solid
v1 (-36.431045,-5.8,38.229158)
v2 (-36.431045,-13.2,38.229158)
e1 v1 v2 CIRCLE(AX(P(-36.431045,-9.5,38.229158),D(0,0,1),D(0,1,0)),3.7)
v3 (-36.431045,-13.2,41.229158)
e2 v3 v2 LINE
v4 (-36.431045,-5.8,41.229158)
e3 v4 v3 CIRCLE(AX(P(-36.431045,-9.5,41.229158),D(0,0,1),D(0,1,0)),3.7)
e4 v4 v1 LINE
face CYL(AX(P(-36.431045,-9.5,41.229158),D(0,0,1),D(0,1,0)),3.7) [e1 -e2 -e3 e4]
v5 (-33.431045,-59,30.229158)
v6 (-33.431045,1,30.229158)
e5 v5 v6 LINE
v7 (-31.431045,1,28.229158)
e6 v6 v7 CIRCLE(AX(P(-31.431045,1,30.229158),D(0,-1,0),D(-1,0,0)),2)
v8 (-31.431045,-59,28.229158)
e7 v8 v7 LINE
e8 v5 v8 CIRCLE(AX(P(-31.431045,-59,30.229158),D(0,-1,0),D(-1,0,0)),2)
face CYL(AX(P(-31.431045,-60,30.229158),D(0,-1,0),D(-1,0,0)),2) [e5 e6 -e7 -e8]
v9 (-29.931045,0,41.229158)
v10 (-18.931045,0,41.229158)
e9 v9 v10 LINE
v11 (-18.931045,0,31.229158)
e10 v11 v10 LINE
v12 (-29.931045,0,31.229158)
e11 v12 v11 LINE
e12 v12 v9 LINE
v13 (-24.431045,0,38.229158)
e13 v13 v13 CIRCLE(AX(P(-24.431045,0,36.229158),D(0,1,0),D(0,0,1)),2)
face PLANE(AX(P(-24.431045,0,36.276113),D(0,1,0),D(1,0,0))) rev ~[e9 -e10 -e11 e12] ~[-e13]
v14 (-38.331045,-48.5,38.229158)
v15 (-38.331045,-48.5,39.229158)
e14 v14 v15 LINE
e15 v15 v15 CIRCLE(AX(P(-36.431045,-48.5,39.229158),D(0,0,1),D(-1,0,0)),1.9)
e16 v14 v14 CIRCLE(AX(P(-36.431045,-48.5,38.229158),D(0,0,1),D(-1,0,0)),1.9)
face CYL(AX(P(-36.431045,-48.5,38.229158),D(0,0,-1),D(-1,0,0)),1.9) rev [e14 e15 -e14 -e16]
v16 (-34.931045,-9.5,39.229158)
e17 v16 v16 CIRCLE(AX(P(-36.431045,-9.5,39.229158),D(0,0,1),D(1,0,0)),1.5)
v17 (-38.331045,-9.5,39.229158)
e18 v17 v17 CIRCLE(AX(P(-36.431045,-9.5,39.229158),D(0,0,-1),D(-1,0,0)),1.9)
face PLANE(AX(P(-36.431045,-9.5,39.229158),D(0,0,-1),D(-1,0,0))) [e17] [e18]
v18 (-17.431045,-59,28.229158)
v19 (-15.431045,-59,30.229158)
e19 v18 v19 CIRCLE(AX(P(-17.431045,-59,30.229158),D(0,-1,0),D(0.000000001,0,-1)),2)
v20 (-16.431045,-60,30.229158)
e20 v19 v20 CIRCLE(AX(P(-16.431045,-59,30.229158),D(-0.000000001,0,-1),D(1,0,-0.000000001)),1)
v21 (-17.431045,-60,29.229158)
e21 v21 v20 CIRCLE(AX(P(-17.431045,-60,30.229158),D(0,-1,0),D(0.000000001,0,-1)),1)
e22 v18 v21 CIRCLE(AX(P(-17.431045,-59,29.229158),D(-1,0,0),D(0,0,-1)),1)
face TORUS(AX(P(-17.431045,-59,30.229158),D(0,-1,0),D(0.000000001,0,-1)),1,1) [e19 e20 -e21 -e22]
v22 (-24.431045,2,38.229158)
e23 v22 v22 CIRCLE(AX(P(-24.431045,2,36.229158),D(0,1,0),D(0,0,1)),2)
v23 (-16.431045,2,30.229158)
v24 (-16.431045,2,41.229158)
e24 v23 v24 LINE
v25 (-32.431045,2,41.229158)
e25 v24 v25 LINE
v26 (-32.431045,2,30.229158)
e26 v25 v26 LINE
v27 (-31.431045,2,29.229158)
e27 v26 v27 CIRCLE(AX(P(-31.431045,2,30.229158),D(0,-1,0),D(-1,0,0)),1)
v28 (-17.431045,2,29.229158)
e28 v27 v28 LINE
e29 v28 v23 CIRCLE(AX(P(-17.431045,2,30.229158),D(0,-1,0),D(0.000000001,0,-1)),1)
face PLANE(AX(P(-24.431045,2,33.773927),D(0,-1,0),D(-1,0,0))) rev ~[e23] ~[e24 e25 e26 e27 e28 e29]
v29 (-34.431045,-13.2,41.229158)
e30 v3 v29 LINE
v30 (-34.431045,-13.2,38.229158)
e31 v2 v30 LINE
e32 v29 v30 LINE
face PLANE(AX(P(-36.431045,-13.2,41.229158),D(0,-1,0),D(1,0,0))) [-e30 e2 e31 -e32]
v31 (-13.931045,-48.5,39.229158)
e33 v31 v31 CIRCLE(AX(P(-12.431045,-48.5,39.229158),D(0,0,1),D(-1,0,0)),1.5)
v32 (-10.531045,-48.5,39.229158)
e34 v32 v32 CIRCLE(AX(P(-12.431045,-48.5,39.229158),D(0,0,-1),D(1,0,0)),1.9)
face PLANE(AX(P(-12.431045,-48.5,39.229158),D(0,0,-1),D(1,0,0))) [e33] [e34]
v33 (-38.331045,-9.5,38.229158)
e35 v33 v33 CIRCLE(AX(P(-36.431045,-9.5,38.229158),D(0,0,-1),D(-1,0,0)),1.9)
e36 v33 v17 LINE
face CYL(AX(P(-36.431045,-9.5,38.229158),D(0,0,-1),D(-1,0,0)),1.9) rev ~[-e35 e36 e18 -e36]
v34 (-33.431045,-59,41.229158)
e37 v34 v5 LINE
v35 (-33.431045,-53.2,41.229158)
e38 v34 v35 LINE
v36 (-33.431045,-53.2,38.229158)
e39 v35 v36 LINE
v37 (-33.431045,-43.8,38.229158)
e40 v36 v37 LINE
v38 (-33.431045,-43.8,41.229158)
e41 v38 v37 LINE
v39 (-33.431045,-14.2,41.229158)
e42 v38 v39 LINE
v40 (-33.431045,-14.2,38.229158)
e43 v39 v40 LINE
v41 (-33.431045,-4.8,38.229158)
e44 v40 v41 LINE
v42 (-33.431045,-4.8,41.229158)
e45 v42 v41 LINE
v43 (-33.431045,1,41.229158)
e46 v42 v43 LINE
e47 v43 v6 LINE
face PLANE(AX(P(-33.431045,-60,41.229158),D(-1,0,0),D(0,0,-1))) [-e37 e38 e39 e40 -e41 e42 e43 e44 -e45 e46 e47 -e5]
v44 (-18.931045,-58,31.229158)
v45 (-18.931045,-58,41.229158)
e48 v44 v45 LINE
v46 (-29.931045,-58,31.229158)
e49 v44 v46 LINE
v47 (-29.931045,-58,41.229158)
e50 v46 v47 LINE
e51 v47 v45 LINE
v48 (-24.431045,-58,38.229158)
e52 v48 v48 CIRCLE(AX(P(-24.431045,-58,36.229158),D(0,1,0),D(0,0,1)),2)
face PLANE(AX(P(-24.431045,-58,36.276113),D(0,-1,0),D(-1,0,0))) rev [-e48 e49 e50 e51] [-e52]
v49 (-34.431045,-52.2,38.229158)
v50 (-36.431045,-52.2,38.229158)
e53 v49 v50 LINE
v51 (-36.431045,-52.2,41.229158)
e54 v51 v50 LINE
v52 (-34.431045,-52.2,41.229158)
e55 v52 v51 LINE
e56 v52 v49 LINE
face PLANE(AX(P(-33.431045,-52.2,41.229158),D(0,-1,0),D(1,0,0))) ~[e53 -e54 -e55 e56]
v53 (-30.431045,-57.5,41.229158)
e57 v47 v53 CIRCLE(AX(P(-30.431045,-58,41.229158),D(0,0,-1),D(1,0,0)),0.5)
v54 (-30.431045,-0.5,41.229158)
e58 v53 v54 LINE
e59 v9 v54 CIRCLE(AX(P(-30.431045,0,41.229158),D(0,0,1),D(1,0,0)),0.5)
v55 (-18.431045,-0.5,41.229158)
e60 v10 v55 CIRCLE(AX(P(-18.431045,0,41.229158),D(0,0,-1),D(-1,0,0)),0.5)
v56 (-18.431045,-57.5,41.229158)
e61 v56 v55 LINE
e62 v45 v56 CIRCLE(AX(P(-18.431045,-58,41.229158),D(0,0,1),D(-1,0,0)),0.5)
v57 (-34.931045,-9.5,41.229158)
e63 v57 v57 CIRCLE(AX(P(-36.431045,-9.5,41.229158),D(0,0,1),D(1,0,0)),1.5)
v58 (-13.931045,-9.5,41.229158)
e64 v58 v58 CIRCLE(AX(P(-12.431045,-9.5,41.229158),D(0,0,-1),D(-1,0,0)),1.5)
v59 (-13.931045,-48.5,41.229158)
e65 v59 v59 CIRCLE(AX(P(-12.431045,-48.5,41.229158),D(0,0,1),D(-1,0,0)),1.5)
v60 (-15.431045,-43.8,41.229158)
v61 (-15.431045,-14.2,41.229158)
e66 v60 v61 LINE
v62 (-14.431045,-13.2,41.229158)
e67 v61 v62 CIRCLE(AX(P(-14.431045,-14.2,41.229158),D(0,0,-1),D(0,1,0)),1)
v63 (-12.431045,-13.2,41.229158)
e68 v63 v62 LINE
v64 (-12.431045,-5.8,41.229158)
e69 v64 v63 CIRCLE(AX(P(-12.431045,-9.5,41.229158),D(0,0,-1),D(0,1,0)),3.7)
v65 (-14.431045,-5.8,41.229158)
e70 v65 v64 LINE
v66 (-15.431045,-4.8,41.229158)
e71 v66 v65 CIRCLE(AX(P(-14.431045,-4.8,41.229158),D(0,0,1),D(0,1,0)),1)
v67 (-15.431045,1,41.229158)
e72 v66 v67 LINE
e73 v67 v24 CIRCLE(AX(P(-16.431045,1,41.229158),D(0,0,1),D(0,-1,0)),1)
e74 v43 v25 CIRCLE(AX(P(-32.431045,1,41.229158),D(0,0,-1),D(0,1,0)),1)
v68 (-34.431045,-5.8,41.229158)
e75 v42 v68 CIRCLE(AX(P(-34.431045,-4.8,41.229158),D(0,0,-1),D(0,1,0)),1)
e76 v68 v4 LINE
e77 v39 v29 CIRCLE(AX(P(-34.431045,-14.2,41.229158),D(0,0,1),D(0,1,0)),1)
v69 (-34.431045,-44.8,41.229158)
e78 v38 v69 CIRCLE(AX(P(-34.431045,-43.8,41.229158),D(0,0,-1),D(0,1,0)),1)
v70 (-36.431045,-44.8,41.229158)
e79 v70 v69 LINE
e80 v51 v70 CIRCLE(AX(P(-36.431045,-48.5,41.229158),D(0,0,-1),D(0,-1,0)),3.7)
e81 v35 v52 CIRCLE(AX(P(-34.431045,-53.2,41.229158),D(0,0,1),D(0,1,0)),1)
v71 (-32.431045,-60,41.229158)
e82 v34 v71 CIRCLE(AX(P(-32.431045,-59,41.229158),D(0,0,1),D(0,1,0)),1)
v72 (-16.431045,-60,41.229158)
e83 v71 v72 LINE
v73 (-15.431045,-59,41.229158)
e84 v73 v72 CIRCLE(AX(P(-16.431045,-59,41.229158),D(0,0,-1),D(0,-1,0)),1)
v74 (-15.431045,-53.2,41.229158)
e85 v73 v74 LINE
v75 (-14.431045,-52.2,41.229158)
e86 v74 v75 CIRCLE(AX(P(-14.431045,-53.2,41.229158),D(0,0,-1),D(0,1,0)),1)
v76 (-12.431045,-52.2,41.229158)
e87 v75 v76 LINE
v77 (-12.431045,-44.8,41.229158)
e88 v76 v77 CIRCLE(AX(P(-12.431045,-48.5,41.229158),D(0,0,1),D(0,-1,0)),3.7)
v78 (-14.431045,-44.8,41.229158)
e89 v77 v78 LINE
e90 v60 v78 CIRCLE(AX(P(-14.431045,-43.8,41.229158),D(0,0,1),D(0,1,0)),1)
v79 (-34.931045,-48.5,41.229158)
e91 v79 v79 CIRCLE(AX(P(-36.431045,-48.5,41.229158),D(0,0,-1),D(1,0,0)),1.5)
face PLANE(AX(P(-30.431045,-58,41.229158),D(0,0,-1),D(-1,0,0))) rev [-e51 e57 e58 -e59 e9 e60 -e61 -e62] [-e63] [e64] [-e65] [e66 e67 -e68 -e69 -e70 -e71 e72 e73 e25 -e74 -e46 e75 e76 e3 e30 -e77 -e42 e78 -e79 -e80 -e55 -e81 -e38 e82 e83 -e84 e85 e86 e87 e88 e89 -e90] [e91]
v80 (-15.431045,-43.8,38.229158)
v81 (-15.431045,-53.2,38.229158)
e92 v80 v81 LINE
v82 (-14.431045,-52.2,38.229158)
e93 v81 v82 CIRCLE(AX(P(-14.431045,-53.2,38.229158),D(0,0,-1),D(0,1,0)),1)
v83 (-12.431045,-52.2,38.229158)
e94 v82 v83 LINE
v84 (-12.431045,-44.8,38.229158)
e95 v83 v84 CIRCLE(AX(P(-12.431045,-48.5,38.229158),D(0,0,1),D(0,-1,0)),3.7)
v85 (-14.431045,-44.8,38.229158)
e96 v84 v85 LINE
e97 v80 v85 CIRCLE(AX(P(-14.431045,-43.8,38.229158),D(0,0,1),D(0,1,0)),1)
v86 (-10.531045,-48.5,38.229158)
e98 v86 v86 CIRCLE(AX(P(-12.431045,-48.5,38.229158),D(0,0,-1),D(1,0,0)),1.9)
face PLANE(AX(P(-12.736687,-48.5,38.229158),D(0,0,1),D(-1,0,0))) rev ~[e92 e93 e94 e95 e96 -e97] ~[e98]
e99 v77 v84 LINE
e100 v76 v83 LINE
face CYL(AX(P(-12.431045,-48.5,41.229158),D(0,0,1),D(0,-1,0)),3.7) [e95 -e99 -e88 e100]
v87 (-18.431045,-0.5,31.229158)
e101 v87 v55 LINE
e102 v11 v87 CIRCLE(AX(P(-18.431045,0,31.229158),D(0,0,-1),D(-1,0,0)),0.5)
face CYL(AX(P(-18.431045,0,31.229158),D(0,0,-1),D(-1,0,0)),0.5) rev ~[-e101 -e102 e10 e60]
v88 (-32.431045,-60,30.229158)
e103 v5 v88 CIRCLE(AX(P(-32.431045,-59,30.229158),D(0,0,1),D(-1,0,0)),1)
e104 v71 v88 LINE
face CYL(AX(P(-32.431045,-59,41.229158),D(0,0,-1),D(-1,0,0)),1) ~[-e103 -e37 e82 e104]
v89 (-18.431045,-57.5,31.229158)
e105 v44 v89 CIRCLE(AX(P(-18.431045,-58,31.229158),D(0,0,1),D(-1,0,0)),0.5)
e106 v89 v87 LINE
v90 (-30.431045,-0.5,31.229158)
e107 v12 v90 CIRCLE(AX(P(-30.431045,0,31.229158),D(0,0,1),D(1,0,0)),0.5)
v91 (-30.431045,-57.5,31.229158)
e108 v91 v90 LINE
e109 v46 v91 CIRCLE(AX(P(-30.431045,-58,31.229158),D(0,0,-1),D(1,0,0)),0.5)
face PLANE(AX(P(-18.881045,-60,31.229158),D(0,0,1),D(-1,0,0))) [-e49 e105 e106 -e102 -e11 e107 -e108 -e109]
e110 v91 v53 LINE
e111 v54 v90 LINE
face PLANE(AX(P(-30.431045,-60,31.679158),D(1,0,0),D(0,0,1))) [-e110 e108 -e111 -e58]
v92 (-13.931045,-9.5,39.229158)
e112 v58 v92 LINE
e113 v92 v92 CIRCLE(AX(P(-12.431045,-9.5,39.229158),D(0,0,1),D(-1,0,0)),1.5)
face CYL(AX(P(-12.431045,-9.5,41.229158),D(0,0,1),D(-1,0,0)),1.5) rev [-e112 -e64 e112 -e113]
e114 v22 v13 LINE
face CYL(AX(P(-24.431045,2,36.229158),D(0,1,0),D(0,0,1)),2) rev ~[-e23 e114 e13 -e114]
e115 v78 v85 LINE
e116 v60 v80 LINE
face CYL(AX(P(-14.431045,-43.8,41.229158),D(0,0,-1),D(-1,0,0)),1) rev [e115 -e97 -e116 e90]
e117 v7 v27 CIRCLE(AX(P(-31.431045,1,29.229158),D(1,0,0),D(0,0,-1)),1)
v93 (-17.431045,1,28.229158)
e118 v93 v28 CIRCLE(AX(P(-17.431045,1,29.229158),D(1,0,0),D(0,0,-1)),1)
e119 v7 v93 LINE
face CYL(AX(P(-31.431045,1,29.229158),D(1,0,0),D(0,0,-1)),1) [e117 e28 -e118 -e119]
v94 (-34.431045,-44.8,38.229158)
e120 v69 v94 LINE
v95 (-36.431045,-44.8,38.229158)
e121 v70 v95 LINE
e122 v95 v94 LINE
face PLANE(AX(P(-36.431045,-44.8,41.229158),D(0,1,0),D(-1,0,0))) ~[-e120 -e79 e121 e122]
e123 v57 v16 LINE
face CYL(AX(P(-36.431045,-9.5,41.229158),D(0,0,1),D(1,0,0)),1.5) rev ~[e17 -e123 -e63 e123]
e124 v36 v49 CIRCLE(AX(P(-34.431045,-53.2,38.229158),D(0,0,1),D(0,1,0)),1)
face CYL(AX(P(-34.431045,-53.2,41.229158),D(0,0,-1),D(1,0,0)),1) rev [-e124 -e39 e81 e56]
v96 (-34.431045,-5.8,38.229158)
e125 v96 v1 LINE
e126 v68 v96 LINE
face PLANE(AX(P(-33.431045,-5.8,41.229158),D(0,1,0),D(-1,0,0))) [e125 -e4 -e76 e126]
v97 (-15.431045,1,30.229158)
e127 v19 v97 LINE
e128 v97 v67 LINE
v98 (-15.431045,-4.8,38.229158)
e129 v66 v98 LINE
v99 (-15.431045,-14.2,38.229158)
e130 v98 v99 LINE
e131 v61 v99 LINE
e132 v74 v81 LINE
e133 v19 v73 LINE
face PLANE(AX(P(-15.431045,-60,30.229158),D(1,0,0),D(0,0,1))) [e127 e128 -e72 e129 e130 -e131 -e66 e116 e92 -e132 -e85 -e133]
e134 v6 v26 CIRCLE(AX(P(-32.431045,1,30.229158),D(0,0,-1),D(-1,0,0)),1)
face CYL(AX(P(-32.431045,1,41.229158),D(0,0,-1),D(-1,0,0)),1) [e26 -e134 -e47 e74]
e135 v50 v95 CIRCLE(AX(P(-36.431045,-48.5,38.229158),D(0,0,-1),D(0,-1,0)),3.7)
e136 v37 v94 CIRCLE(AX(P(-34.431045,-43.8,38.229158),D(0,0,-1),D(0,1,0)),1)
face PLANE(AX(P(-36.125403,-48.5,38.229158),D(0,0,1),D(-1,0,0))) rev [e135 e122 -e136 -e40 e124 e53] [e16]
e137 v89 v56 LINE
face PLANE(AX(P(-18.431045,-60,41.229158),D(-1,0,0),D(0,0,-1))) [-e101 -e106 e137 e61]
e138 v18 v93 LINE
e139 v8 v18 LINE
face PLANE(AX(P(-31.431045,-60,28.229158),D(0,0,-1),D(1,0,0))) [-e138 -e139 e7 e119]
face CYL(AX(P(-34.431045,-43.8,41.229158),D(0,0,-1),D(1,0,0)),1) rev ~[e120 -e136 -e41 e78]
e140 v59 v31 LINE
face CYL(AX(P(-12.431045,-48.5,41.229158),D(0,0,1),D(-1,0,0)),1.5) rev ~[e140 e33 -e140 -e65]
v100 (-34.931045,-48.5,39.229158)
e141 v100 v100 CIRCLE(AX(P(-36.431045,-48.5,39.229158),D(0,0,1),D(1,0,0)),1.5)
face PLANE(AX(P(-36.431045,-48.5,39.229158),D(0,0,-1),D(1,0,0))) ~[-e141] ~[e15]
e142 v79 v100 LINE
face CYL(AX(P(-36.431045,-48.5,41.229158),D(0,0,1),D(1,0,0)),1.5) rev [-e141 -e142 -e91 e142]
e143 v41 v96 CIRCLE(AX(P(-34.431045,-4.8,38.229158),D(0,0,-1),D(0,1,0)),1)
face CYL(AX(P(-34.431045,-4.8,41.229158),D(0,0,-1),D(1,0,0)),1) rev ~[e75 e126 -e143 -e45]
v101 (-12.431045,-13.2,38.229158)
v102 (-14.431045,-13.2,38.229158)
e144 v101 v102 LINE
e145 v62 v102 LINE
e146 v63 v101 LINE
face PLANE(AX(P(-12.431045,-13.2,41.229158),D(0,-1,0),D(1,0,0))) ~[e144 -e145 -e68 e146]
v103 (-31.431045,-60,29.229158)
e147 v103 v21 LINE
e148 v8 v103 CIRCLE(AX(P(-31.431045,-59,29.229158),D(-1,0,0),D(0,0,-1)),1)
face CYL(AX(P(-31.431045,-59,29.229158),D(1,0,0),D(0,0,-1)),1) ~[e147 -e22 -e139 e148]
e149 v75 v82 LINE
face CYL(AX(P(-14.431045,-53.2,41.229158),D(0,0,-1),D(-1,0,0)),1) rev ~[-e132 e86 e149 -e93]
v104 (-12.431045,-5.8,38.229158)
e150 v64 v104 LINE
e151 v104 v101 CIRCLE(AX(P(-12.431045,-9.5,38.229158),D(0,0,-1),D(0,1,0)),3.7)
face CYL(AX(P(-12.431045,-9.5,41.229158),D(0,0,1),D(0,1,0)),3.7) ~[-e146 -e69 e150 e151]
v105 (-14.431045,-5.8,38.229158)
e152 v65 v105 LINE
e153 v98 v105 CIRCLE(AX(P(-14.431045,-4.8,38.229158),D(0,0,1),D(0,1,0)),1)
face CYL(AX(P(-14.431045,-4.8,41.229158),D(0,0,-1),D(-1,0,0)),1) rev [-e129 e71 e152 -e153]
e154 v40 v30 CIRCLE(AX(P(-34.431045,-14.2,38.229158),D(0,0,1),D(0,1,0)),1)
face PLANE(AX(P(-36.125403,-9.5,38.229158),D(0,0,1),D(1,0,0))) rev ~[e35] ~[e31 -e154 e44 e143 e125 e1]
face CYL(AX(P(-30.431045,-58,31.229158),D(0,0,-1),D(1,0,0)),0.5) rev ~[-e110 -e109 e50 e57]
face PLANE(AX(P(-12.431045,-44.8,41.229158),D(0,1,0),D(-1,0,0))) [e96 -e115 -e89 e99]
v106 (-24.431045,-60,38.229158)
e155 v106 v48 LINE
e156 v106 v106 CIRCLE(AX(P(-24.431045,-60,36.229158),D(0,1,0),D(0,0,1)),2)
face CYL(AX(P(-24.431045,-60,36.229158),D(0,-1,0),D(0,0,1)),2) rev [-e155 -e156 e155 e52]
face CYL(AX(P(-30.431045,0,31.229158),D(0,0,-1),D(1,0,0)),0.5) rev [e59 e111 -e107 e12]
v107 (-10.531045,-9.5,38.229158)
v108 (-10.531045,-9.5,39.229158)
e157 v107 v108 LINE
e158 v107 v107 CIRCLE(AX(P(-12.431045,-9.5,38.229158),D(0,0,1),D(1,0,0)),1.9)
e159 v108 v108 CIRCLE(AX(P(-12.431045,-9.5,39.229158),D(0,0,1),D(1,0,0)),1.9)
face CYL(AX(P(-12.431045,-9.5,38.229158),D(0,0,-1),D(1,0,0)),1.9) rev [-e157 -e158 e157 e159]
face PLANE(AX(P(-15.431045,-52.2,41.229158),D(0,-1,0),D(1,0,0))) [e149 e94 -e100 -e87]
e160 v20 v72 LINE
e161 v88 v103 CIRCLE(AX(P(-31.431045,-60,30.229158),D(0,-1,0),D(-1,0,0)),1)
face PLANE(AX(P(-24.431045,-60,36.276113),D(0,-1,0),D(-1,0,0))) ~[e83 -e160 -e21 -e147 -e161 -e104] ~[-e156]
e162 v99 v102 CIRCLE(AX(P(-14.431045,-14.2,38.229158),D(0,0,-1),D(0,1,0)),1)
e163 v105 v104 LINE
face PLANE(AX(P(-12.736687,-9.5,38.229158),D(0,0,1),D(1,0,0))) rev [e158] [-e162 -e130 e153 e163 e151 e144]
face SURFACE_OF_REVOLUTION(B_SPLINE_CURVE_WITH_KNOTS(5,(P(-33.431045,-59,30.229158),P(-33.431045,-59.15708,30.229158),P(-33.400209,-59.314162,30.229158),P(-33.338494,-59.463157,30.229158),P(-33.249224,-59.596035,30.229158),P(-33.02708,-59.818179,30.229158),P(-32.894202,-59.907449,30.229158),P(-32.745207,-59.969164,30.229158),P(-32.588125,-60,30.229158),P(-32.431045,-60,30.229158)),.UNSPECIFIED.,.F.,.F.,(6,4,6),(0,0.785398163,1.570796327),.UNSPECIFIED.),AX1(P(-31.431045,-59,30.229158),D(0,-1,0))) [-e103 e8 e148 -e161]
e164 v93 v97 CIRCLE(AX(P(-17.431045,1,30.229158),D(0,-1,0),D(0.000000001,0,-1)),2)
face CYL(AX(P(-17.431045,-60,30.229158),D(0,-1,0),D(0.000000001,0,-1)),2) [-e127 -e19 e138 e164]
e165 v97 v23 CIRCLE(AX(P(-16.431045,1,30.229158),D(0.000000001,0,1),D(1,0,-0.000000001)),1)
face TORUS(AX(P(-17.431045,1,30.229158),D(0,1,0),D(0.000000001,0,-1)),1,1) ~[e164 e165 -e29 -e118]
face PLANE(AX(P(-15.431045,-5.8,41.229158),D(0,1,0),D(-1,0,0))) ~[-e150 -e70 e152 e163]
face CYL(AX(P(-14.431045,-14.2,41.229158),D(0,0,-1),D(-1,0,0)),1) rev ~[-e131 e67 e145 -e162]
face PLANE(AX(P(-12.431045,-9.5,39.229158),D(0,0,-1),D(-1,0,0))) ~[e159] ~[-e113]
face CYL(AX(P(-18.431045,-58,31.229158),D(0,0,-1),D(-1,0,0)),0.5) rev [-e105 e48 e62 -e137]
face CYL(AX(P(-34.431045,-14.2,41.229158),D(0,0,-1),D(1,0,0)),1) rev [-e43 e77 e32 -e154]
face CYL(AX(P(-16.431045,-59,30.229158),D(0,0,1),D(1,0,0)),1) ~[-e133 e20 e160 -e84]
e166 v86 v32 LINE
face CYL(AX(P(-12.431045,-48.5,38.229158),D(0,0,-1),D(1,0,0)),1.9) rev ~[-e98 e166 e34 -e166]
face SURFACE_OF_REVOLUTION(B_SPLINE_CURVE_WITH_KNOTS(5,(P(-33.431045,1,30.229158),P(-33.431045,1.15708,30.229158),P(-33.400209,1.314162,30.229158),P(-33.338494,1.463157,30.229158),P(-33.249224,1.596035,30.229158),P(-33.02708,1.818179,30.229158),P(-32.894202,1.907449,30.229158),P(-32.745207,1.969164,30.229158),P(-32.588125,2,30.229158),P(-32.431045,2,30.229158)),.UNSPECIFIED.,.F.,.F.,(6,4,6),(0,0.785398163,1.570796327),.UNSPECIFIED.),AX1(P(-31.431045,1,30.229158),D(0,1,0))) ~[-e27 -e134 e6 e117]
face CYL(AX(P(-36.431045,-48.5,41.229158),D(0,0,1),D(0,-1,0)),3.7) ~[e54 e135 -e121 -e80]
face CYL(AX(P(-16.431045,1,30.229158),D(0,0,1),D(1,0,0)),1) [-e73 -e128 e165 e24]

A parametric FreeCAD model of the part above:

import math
import FreeCAD as App
import Part
import Sketcher

V = App.Vector


def edges_at(feature, points):
    """Names of the edges that pass closest to the given points."""
    edges = feature.Shape.Edges
    near = lambda p: min(range(len(edges)), key=lambda i: edges[i].distToShape(Part.Vertex(*p))[0])
    return sorted({f"Edge{near(p) + 1}" for p in points})

doc = App.newDocument("Part")
body = doc.addObject("PartDesign::Body", "Body")

sketch1 = body.newObject("Sketcher::SketchObject", "Sketch")
sketch1.AttachmentSupport = (doc.getObject("XZ_Plane"), [""])
sketch1.MapMode = "FlatFace"
sketch1.addGeometry(Part.LineSegment(V(-30.431045, 41.229158, 0), V(-18.431045, 41.229158, 0)), False)
sketch1.addGeometry(Part.LineSegment(V(-18.431045, 41.229158, 0), V(-18.431045, 31.679158, 0)), False)
sketch1.addGeometry(Part.ArcOfCircle(Part.Circle(V(-18.881045, 31.679158, 0), V(0, 0, 1), 0.45), math.radians(-90), math.radians(0)), False)
sketch1.addGeometry(Part.LineSegment(V(-18.881045, 31.229158, 0), V(-29.981045, 31.229158, 0)), False)
sketch1.addGeometry(Part.ArcOfCircle(Part.Circle(V(-29.981045, 31.679158, 0), V(0, 0, 1), 0.45), math.radians(180), math.radians(270)), False)
sketch1.addGeometry(Part.LineSegment(V(-30.431045, 31.679158, 0), V(-30.431045, 41.229158, 0)), False)
sketch1.addConstraint(Sketcher.Constraint("Coincident", 0, 2, 1, 1))
sketch1.addConstraint(Sketcher.Constraint("Tangent", 1, 2, 2, 2))
sketch1.addConstraint(Sketcher.Constraint("Tangent", 2, 1, 3, 1))
sketch1.addConstraint(Sketcher.Constraint("Tangent", 3, 2, 4, 2))
sketch1.addConstraint(Sketcher.Constraint("Tangent", 4, 1, 5, 1))
sketch1.addConstraint(Sketcher.Constraint("Coincident", 5, 2, 0, 1))
sketch1.addConstraint(Sketcher.Constraint("Horizontal", 0))
sketch1.addConstraint(Sketcher.Constraint("Vertical", 1))
sketch1.addConstraint(Sketcher.Constraint("Horizontal", 3))
sketch1.addConstraint(Sketcher.Constraint("Vertical", 5))
sketch1.addConstraint(Sketcher.Constraint("Equal", 2, 4))
sketch1.addConstraint(Sketcher.Constraint("DistanceX", 0, 1, 0, 2, 12.0))
sketch1.addConstraint(Sketcher.Constraint("Radius", 2, 0.45))
sketch1.addConstraint(Sketcher.Constraint("DistanceY", 2, 1, 0, 2, 10.0))
sketch1.addConstraint(Sketcher.Constraint("DistanceX", 2, 3, -1, 1, 18.881045))
sketch1.addConstraint(Sketcher.Constraint("DistanceY", -1, 1, 2, 3, 31.679158))
pad1 = body.newObject("PartDesign::Pad", "Pad")
pad1.Profile = sketch1
pad1.Length = 2
pad1.Reversed = True

sketch2 = body.newObject("Sketcher::SketchObject", "Sketch001")
sketch2.AttachmentSupport = (doc.getObject("XZ_Plane"), [""])
sketch2.MapMode = "FlatFace"
sketch2.AttachmentOffset = App.Placement(V(0, 0, -2), App.Rotation())
sketch2.addGeometry(Part.Circle(V(-24.431045, 36.229158, 0), V(0, 0, 1), 2), False)
sketch2.addConstraint(Sketcher.Constraint("Diameter", 0, 4.0))
sketch2.addConstraint(Sketcher.Constraint("DistanceX", 0, 3, -1, 1, 24.431045))
sketch2.addConstraint(Sketcher.Constraint("DistanceY", -1, 1, 0, 3, 36.229158))
pocket1 = body.newObject("PartDesign::Pocket", "Pocket")
pocket1.Profile = sketch2
pocket1.Length = 2
pocket1.Reversed = True

sketch3 = body.newObject("Sketcher::SketchObject", "Sketch002")
sketch3.AttachmentSupport = (doc.getObject("XZ_Plane"), [""])
sketch3.MapMode = "FlatFace"
sketch3.AttachmentOffset = App.Placement(V(0, 0, 60), App.Rotation())
sketch3.addGeometry(Part.ArcOfCircle(Part.Circle(V(-29.981045, 31.679158, 0), V(0, 0, 1), 0.45), math.radians(180), math.radians(270)), False)
sketch3.addGeometry(Part.LineSegment(V(-29.981045, 31.229158, 0), V(-18.881045, 31.229158, 0)), False)
sketch3.addGeometry(Part.ArcOfCircle(Part.Circle(V(-18.881045, 31.679158, 0), V(0, 0, 1), 0.45), math.radians(-90), math.radians(0)), False)
sketch3.addGeometry(Part.LineSegment(V(-18.431045, 31.679158, 0), V(-18.431045, 41.229158, 0)), False)
sketch3.addGeometry(Part.LineSegment(V(-18.431045, 41.229158, 0), V(-15.431045, 41.229158, 0)), False)
sketch3.addGeometry(Part.LineSegment(V(-15.431045, 41.229158, 0), V(-15.431045, 30.229158, 0)), False)
sketch3.addGeometry(Part.ArcOfCircle(Part.Circle(V(-17.431045, 30.229158, 0), V(0, 0, 1), 2), math.radians(-90), math.radians(0)), False)
sketch3.addGeometry(Part.LineSegment(V(-17.431045, 28.229158, 0), V(-31.431045, 28.229158, 0)), False)
sketch3.addGeometry(Part.ArcOfCircle(Part.Circle(V(-31.431045, 30.229158, 0), V(0, 0, 1), 2), math.radians(180), math.radians(270)), False)
sketch3.addGeometry(Part.LineSegment(V(-33.431045, 30.229158, 0), V(-33.431045, 41.229158, 0)), False)
sketch3.addGeometry(Part.LineSegment(V(-33.431045, 41.229158, 0), V(-30.431045, 41.229158, 0)), False)
sketch3.addGeometry(Part.LineSegment(V(-30.431045, 41.229158, 0), V(-30.431045, 31.679158, 0)), False)
sketch3.addConstraint(Sketcher.Constraint("Tangent", 0, 2, 1, 1))
sketch3.addConstraint(Sketcher.Constraint("Tangent", 1, 2, 2, 1))
sketch3.addConstraint(Sketcher.Constraint("Tangent", 2, 2, 3, 1))
sketch3.addConstraint(Sketcher.Constraint("Coincident", 3, 2, 4, 1))
sketch3.addConstraint(Sketcher.Constraint("Coincident", 4, 2, 5, 1))
sketch3.addConstraint(Sketcher.Constraint("Tangent", 5, 2, 6, 2))
sketch3.addConstraint(Sketcher.Constraint("Tangent", 6, 1, 7, 1))
sketch3.addConstraint(Sketcher.Constraint("Tangent", 7, 2, 8, 2))
sketch3.addConstraint(Sketcher.Constraint("Tangent", 8, 1, 9, 1))
sketch3.addConstraint(Sketcher.Constraint("Coincident", 9, 2, 10, 1))
sketch3.addConstraint(Sketcher.Constraint("Coincident", 10, 2, 11, 1))
sketch3.addConstraint(Sketcher.Constraint("Tangent", 11, 2, 0, 1))
sketch3.addConstraint(Sketcher.Constraint("Horizontal", 1))
sketch3.addConstraint(Sketcher.Constraint("Vertical", 3))
sketch3.addConstraint(Sketcher.Constraint("Horizontal", 4))
sketch3.addConstraint(Sketcher.Constraint("Vertical", 5))
sketch3.addConstraint(Sketcher.Constraint("Horizontal", 7))
sketch3.addConstraint(Sketcher.Constraint("Vertical", 9))
sketch3.addConstraint(Sketcher.Constraint("Horizontal", 10))
sketch3.addConstraint(Sketcher.Constraint("Vertical", 11))
sketch3.addConstraint(Sketcher.Constraint("Equal", 0, 2))
sketch3.addConstraint(Sketcher.Constraint("Equal", 6, 8))
sketch3.addConstraint(Sketcher.Constraint("Horizontal", 4, 2, 9, 2))
sketch3.addConstraint(Sketcher.Constraint("Equal", 4, 10))
sketch3.addConstraint(Sketcher.Constraint("Radius", 6, 2.0))
sketch3.addConstraint(Sketcher.Constraint("DistanceX", 4, 1, 4, 2, 3.0))
sketch3.addConstraint(Sketcher.Constraint("DistanceX", 7, 2, 7, 1, 14.0))
sketch3.addConstraint(Sketcher.Constraint("DistanceY", 5, 2, 5, 1, 11.0))
sketch3.addConstraint(Sketcher.Constraint("Radius", 0, 0.45))
sketch3.addConstraint(Sketcher.Constraint("DistanceY", 8, 3, 0, 2, 1.0))
sketch3.addConstraint(Sketcher.Constraint("DistanceX", 0, 3, -1, 1, 29.981045))
sketch3.addConstraint(Sketcher.Constraint("DistanceY", -1, 1, 0, 3, 31.679158))
pad2 = body.newObject("PartDesign::Pad", "Pad001")
pad2.Profile = sketch3
pad2.Length = 62
pad2.Reversed = True

sketch4 = body.newObject("Sketcher::SketchObject", "Sketch003")
sketch4.AttachmentSupport = (doc.getObject("XY_Plane"), [""])
sketch4.MapMode = "FlatFace"
sketch4.AttachmentOffset = App.Placement(V(0, 0, 41.229158), App.Rotation())
sketch4.addGeometry(Part.LineSegment(V(-33.431045, -5.8, 0), V(-36.431045, -5.8, 0)), False)
sketch4.addGeometry(Part.ArcOfCircle(Part.Circle(V(-36.431045, -9.5, 0), V(0, 0, 1), 3.7), math.radians(90), math.radians(270)), False)
sketch4.addGeometry(Part.LineSegment(V(-36.431045, -13.2, 0), V(-33.431045, -13.2, 0)), False)
sketch4.addGeometry(Part.LineSegment(V(-33.431045, -13.2, 0), V(-33.431045, -5.8, 0)), False)
sketch4.addGeometry(Part.Circle(V(-36.431045, -9.5, 0), V(0, 0, 1), 1.5), False)
sketch4.addConstraint(Sketcher.Constraint("Tangent", 0, 2, 1, 1))
sketch4.addConstraint(Sketcher.Constraint("Tangent", 1, 2, 2, 1))
sketch4.addConstraint(Sketcher.Constraint("Coincident", 2, 2, 3, 1))
sketch4.addConstraint(Sketcher.Constraint("Coincident", 3, 2, 0, 1))
sketch4.addConstraint(Sketcher.Constraint("Horizontal", 0))
sketch4.addConstraint(Sketcher.Constraint("Horizontal", 2))
sketch4.addConstraint(Sketcher.Constraint("Vertical", 3))
sketch4.addConstraint(Sketcher.Constraint("Coincident", 4, 3, 1, 3))
sketch4.addConstraint(Sketcher.Constraint("Diameter", 4, 3.0))
sketch4.addConstraint(Sketcher.Constraint("Radius", 1, 3.7))
sketch4.addConstraint(Sketcher.Constraint("DistanceX", 0, 2, 0, 1, 3.0))
sketch4.addConstraint(Sketcher.Constraint("DistanceY", 1, 3, -1, 1, 9.5))
sketch4.addConstraint(Sketcher.Constraint("DistanceX", 1, 3, -1, 1, 36.431045))
pad3 = body.newObject("PartDesign::Pad", "Pad002")
pad3.Profile = sketch4
pad3.Length = 3
pad3.Reversed = True
doc.recompute()

fillet = body.newObject("PartDesign::Fillet", "Fillet")
fillet.Base = (pad3, edges_at(pad3, [(-33.431, -5.8, 39.729), (-33.431, -13.2, 39.729)]))
fillet.Radius = 1
doc.recompute()

datumplane = body.newObject("PartDesign::Plane", "DatumPlane")
datumplane.AttachmentSupport = (doc.getObject("XZ_Plane"), [""])
datumplane.MapMode = "FlatFace"
datumplane.AttachmentOffset = App.Placement(V(0, 0, 29), App.Rotation())
mirrored = body.newObject("PartDesign::Mirrored", "Mirrored")
mirrored.Originals = [pad1, pocket1]
mirrored.MirrorPlane = (datumplane, [""])
body.Tip = mirrored
doc.recompute()

fillet2 = body.newObject("PartDesign::Fillet", "Fillet001")
fillet2.Base = (mirrored, edges_at(mirrored, [
    (-33.431, -60, 35.729),
    (-32.845, -60, 28.815),
    (-24.431, -60, 28.229),
    (-16.017, -60, 28.815),
    (-15.431, -60, 35.729),
    (-15.431, 2, 35.729),
    (-16.017, 2, 28.815),
    (-24.431, 2, 28.229),
    (-32.845, 2, 28.815),
    (-33.431, 2, 35.729),
]))
fillet2.Radius = 1

sketch5 = body.newObject("Sketcher::SketchObject", "Sketch004")
sketch5.AttachmentSupport = (doc.getObject("XY_Plane"), [""])
sketch5.MapMode = "FlatFace"
sketch5.AttachmentOffset = App.Placement(V(0, 0, 38.229158), App.Rotation())
sketch5.addGeometry(Part.Circle(V(-36.431045, -9.5, 0), V(0, 0, 1), 1.9), False)
sketch5.addConstraint(Sketcher.Constraint("Diameter", 0, 3.8))
sketch5.addConstraint(Sketcher.Constraint("DistanceY", 0, 3, -1, 1, 9.5))
sketch5.addConstraint(Sketcher.Constraint("DistanceX", 0, 3, -1, 1, 36.431045))
pocket2 = body.newObject("PartDesign::Pocket", "Pocket001")
pocket2.Profile = sketch5
pocket2.Length = 1
pocket2.Reversed = True
doc.recompute()

datumplane2 = body.newObject("PartDesign::Plane", "DatumPlane001")
datumplane2.AttachmentSupport = (doc.getObject("YZ_Plane"), [""])
datumplane2.MapMode = "FlatFace"
datumplane2.AttachmentOffset = App.Placement(V(0, 0, -24.431045), App.Rotation())
mirrored2 = body.newObject("PartDesign::Mirrored", "Mirrored001")
mirrored2.Originals = [pad3, pocket2]
mirrored2.MirrorPlane = (datumplane2, [""])
body.Tip = mirrored2
doc.recompute()

datumplane3 = body.newObject("PartDesign::Plane", "DatumPlane002")
datumplane3.AttachmentSupport = (doc.getObject("XZ_Plane"), [""])
datumplane3.MapMode = "FlatFace"
datumplane3.AttachmentOffset = App.Placement(V(0, 0, 29), App.Rotation())
mirrored3 = body.newObject("PartDesign::Mirrored", "Mirrored002")
mirrored3.Originals = [pad3, pocket2]
mirrored3.MirrorPlane = (datumplane3, [""])
body.Tip = mirrored3

sketch6 = body.newObject("Sketcher::SketchObject", "Sketch005")
sketch6.AttachmentSupport = (doc.getObject("XY_Plane"), [""])
sketch6.MapMode = "FlatFace"
sketch6.AttachmentOffset = App.Placement(V(0, 0, 41.229158), App.Rotation())
sketch6.addGeometry(Part.LineSegment(V(-15.431045, -52.2, 0), V(-12.431045, -52.2, 0)), False)
sketch6.addGeometry(Part.ArcOfCircle(Part.Circle(V(-12.431045, -48.5, 0), V(0, 0, 1), 3.7), math.radians(-90), math.radians(90)), False)
sketch6.addGeometry(Part.LineSegment(V(-12.431045, -44.8, 0), V(-15.431045, -44.8, 0)), False)
sketch6.addGeometry(Part.LineSegment(V(-15.431045, -44.8, 0), V(-15.431045, -52.2, 0)), False)
sketch6.addGeometry(Part.Circle(V(-12.431045, -48.5, 0), V(0, 0, 1), 1.5), False)
sketch6.addConstraint(Sketcher.Constraint("Tangent", 0, 2, 1, 1))
sketch6.addConstraint(Sketcher.Constraint("Tangent", 1, 2, 2, 1))
sketch6.addConstraint(Sketcher.Constraint("Coincident", 2, 2, 3, 1))
sketch6.addConstraint(Sketcher.Constraint("Coincident", 3, 2, 0, 1))
sketch6.addConstraint(Sketcher.Constraint("Horizontal", 0))
sketch6.addConstraint(Sketcher.Constraint("Horizontal", 2))
sketch6.addConstraint(Sketcher.Constraint("Vertical", 3))
sketch6.addConstraint(Sketcher.Constraint("Coincident", 4, 3, 1, 3))
sketch6.addConstraint(Sketcher.Constraint("Diameter", 4, 3.0))
sketch6.addConstraint(Sketcher.Constraint("Radius", 1, 3.7))
sketch6.addConstraint(Sketcher.Constraint("DistanceX", 0, 1, 0, 2, 3.0))
sketch6.addConstraint(Sketcher.Constraint("DistanceY", 1, 3, -1, 1, 48.5))
sketch6.addConstraint(Sketcher.Constraint("DistanceX", 1, 3, -1, 1, 12.431045))
pad4 = body.newObject("PartDesign::Pad", "Pad003")
pad4.Profile = sketch6
pad4.Length = 3
pad4.Reversed = True

sketch7 = body.newObject("Sketcher::SketchObject", "Sketch006")
sketch7.AttachmentSupport = (doc.getObject("XY_Plane"), [""])
sketch7.MapMode = "FlatFace"
sketch7.AttachmentOffset = App.Placement(V(0, 0, 38.229158), App.Rotation())
sketch7.addGeometry(Part.Circle(V(-12.431045, -48.5, 0), V(0, 0, 1), 1.9), False)
sketch7.addConstraint(Sketcher.Constraint("Diameter", 0, 3.8))
sketch7.addConstraint(Sketcher.Constraint("DistanceY", 0, 3, -1, 1, 48.5))
sketch7.addConstraint(Sketcher.Constraint("DistanceX", 0, 3, -1, 1, 12.431045))
pocket3 = body.newObject("PartDesign::Pocket", "Pocket002")
pocket3.Profile = sketch7
pocket3.Length = 1
pocket3.Reversed = True
doc.recompute()

fillet3 = body.newObject("PartDesign::Fillet", "Fillet002")
fillet3.Base = (pocket3, edges_at(pocket3, [
    (-15.431, -5.8, 39.729),
    (-15.431, -13.2, 39.729),
    (-15.431, -52.2, 39.729),
    (-15.431, -44.8, 39.729),
    (-33.431, -52.2, 39.729),
    (-33.431, -44.8, 39.729),
]))
fillet3.Radius = 1

sketch8 = body.newObject("Sketcher::SketchObject", "Sketch007")
sketch8.AttachmentSupport = (doc.getObject("XY_Plane"), [""])
sketch8.MapMode = "FlatFace"
sketch8.AttachmentOffset = App.Placement(V(0, 0, 31.229158), App.Rotation())
sketch8.addGeometry(Part.LineSegment(V(-30.431045, -0.5, 0), V(-30.431045, -58, 0)), False)
sketch8.addGeometry(Part.LineSegment(V(-30.431045, -58, 0), V(-18.431045, -58, 0)), False)
sketch8.addGeometry(Part.LineSegment(V(-18.431045, -58, 0), V(-18.431045, 0, 0)), False)
sketch8.addGeometry(Part.LineSegment(V(-18.431045, 0, 0), V(-29.931045, 0, 0)), False)
sketch8.addGeometry(Part.ArcOfCircle(Part.Circle(V(-30.431045, 0, 0), V(0, 0, 1), 0.5), math.radians(0), math.radians(270)), False)
sketch8.addConstraint(Sketcher.Constraint("Coincident", 0, 2, 1, 1))
sketch8.addConstraint(Sketcher.Constraint("Coincident", 1, 2, 2, 1))
sketch8.addConstraint(Sketcher.Constraint("Coincident", 2, 2, 3, 1))
sketch8.addConstraint(Sketcher.Constraint("Coincident", 3, 2, 4, 1))
sketch8.addConstraint(Sketcher.Constraint("Coincident", 4, 2, 0, 1))
sketch8.addConstraint(Sketcher.Constraint("Vertical", 0))
sketch8.addConstraint(Sketcher.Constraint("Horizontal", 1))
sketch8.addConstraint(Sketcher.Constraint("Vertical", 2))
sketch8.addConstraint(Sketcher.Constraint("Horizontal", 3))
sketch8.addConstraint(Sketcher.Constraint("PointOnObject", 4, 3, -1))
sketch8.addConstraint(Sketcher.Constraint("PointOnObject", 2, 2, -1))
sketch8.addConstraint(Sketcher.Constraint("Vertical", 4, 3, 0, 2))
sketch8.addConstraint(Sketcher.Constraint("Radius", 4, 0.5))
sketch8.addConstraint(Sketcher.Constraint("DistanceX", 1, 1, 1, 2, 12.0))
sketch8.addConstraint(Sketcher.Constraint("DistanceY", 2, 1, 2, 2, 58.0))
sketch8.addConstraint(Sketcher.Constraint("DistanceX", 4, 3, -1, 1, 30.431045))
pocket4 = body.newObject("PartDesign::Pocket", "Pocket003")
pocket4.Profile = sketch8
pocket4.Length = 10
pocket4.Reversed = True
doc.recompute()

datumplane4 = body.newObject("PartDesign::Plane", "DatumPlane003")
datumplane4.AttachmentSupport = (doc.getObject("YZ_Plane"), [""])
datumplane4.MapMode = "FlatFace"
datumplane4.AttachmentOffset = App.Placement(V(0, 0, -24.431045), App.Rotation())
mirrored4 = body.newObject("PartDesign::Mirrored", "Mirrored003")
mirrored4.Originals = [pocket4]
mirrored4.MirrorPlane = (datumplane4, [""])
body.Tip = mirrored4
doc.recompute()

datumplane5 = body.newObject("PartDesign::Plane", "DatumPlane004")
datumplane5.AttachmentSupport = (doc.getObject("XZ_Plane"), [""])
datumplane5.MapMode = "FlatFace"
datumplane5.AttachmentOffset = App.Placement(V(0, 0, 29), App.Rotation())
mirrored5 = body.newObject("PartDesign::Mirrored", "Mirrored004")
mirrored5.Originals = [pocket4]
mirrored5.MirrorPlane = (datumplane5, [""])
body.Tip = mirrored5

sketch9 = body.newObject("Sketcher::SketchObject", "Sketch008")
sketch9.AttachmentSupport = (doc.getObject("XY_Plane"), [""])
sketch9.MapMode = "FlatFace"
sketch9.AttachmentOffset = App.Placement(V(0, 0, 31.229158), App.Rotation())
sketch9.addGeometry(Part.LineSegment(V(-18.431045, -57.5, 0), V(-18.431045, 0, 0)), False)
sketch9.addGeometry(Part.LineSegment(V(-18.431045, 0, 0), V(-30.431045, 0, 0)), False)
sketch9.addGeometry(Part.LineSegment(V(-30.431045, 0, 0), V(-30.431045, -58, 0)), False)
sketch9.addGeometry(Part.LineSegment(V(-30.431045, -58, 0), V(-18.931045, -58, 0)), False)
sketch9.addGeometry(Part.ArcOfCircle(Part.Circle(V(-18.431045, -58, 0), V(0, 0, 1), 0.5), math.radians(180), math.radians(450)), False)
sketch9.addConstraint(Sketcher.Constraint("Coincident", 0, 2, 1, 1))
sketch9.addConstraint(Sketcher.Constraint("Coincident", 1, 2, 2, 1))
sketch9.addConstraint(Sketcher.Constraint("Coincident", 2, 2, 3, 1))
sketch9.addConstraint(Sketcher.Constraint("Coincident", 3, 2, 4, 1))
sketch9.addConstraint(Sketcher.Constraint("Coincident", 4, 2, 0, 1))
sketch9.addConstraint(Sketcher.Constraint("Vertical", 0))
sketch9.addConstraint(Sketcher.Constraint("Horizontal", 1))
sketch9.addConstraint(Sketcher.Constraint("Vertical", 2))
sketch9.addConstraint(Sketcher.Constraint("Horizontal", 3))
sketch9.addConstraint(Sketcher.Constraint("PointOnObject", 0, 2, -1))
sketch9.addConstraint(Sketcher.Constraint("Horizontal", 4, 3, 2, 2))
sketch9.addConstraint(Sketcher.Constraint("Vertical", 4, 3, 0, 2))
sketch9.addConstraint(Sketcher.Constraint("Radius", 4, 0.5))
sketch9.addConstraint(Sketcher.Constraint("DistanceX", 1, 2, 1, 1, 12.0))
sketch9.addConstraint(Sketcher.Constraint("DistanceY", 2, 2, 2, 1, 58.0))
sketch9.addConstraint(Sketcher.Constraint("DistanceX", 4, 3, -1, 1, 18.431045))
pocket5 = body.newObject("PartDesign::Pocket", "Pocket004")
pocket5.Profile = sketch9
pocket5.Length = 10
pocket5.Reversed = True

doc.recompute()
